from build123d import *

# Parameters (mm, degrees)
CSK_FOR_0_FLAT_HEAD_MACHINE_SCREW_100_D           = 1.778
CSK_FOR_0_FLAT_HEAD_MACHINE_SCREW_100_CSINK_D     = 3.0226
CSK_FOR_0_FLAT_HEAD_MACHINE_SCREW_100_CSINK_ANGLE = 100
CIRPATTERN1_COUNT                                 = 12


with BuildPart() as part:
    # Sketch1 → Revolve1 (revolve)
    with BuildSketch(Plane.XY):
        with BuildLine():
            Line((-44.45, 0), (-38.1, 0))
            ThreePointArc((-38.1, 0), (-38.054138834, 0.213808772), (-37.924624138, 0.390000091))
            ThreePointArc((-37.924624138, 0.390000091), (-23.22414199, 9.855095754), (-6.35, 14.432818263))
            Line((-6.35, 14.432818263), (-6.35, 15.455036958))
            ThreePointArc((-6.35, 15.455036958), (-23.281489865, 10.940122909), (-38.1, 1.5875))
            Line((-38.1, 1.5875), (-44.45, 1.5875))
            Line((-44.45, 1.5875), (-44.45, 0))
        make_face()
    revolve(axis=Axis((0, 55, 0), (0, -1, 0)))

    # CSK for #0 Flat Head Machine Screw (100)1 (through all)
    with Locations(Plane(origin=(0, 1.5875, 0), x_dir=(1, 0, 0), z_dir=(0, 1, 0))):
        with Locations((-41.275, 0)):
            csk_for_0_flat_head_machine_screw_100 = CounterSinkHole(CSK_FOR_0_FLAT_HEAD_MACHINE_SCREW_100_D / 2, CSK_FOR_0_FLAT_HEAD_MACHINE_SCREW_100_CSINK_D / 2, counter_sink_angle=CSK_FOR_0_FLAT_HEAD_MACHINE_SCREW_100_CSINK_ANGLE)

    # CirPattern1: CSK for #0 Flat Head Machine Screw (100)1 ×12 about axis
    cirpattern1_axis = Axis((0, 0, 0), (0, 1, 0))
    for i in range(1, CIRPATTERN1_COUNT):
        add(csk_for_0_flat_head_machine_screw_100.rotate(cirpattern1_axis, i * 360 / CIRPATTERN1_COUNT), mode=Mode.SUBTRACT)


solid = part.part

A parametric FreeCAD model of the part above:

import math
import FreeCAD as App
import Part
import Sketcher
Q = App.Units.Quantity

doc = App.newDocument("Part")
body = doc.addObject("PartDesign::Body", "Body")

# Sketch on XY plane
sketch1 = body.newObject("Sketcher::SketchObject", "Sketch")
sketch1.AttachmentSupport = (doc.getObject("XY_Plane"), [""])
sketch1.MapMode = "FlatFace"
sketch1.addGeometry([
    Part.LineSegment(App.Vector(-44.45, 0, 0), App.Vector(-38.1, 0, 0)),  # 0
    Part.ArcOfCircle(Part.Circle(App.Vector(-37.58, 0, 0), App.Vector(0, 0, 1), 0.52), math.radians(132), math.radians(180)),  # 1
    Part.ArcOfCircle(Part.Circle(App.Vector(0, -42.36, 0), App.Vector(0, 0, 1), 57.15), math.radians(96), math.radians(132)),  # 2
    Part.LineSegment(App.Vector(-6.35, 14.43, 0), App.Vector(-6.35, 15.46, 0)),  # 3
    Part.ArcOfCircle(Part.Circle(App.Vector(0, -42.36, 0), App.Vector(0, 0, 1), 58.17), math.radians(96), math.radians(131)),  # 4
    Part.LineSegment(App.Vector(-38.1, 1.59, 0), App.Vector(-44.45, 1.59, 0)),  # 5
    Part.LineSegment(App.Vector(-44.45, 1.59, 0), App.Vector(-44.45, 0, 0)),  # 6
], False)
sketch1.addConstraint([
    Sketcher.Constraint("Coincident", 0, 2, 1, 2),
    Sketcher.Constraint("Tangent", 1, 1, 2, 2),
    Sketcher.Constraint("Coincident", 2, 1, 3, 1),
    Sketcher.Constraint("Coincident", 3, 2, 4, 1),
    Sketcher.Constraint("Coincident", 4, 2, 5, 1),
    Sketcher.Constraint("Coincident", 5, 2, 6, 1),
    Sketcher.Constraint("Coincident", 6, 2, 0, 1),
    Sketcher.Constraint("Horizontal", 0),
    Sketcher.Constraint("Vertical", 3),
    Sketcher.Constraint("Horizontal", 5),
    Sketcher.Constraint("Vertical", 6),
    Sketcher.Constraint("Coincident", 4, 3, 2, 3),
    Sketcher.Constraint("PointOnObject", 1, 3, -1),
    Sketcher.Constraint("PointOnObject", 2, 3, -2),
    Sketcher.Constraint("PointOnObject", 0, 2, -1),
    Sketcher.Constraint("Vertical", 0, 2, 4, 2),
    Sketcher.Constraint("Radius", 2, Q("2.25 in")),
    Sketcher.Constraint("Radius", 4, Q("2.29 in")),
    Sketcher.Constraint("DistanceX", 0, 1, 0, 2, Q("0.25 in")),
    Sketcher.Constraint("DistanceX", 0, 2, -1, 1, Q("1.5 in")),
    Sketcher.Constraint("DistanceX", 5, 2, 2, 1, Q("1.5 in")),
    Sketcher.Constraint("DistanceY", 6, 2, 6, 1, Q("0.0625 in")),
])
revolution = body.newObject("PartDesign::Revolution", "Revolution")
revolution.Profile = sketch1
revolution.ReferenceAxis = (sketch1, ["V_Axis"])
revolution.Angle = 360

# Sketch on XZ plane
sketch2 = body.newObject("Sketcher::SketchObject", "Sketch001")
sketch2.AttachmentSupport = (doc.getObject("XZ_Plane"), [""])
sketch2.MapMode = "FlatFace"
sketch2.AttachmentOffset = App.Placement(App.Vector(0, 0, -0.0625 * 25.4), App.Rotation())
sketch2.addGeometry(Part.Circle(App.Vector(-41.3, 0, 0), App.Vector(0, 0, 1), 0.9), False)
sketch2.addConstraint([
    Sketcher.Constraint("PointOnObject", 0, 3, -1),
    Sketcher.Constraint("Diameter", 0, Q("0.07 in")),
    Sketcher.Constraint("DistanceX", 0, 3, -1, 1, Q("1.625 in")),
])
doc.recompute()
hole = body.newObject("PartDesign::Hole", "Hole")
hole.Profile = sketch2
hole.ThreadType = "None"
hole.Diameter = Q("0.07 in")
hole.DepthType = "ThroughAll"
hole.HoleCutType = "Countersink"
hole.HoleCutDiameter = Q("0.119 in")
hole.HoleCutCountersinkAngle = 100
hole.Reversed = True
doc.recompute()

polarpattern = body.newObject("PartDesign::PolarPattern", "PolarPattern")
polarpattern.Originals = [hole]
polarpattern.Axis = (doc.getObject("Y_Axis"), [""])
polarpattern.Angle = 360
polarpattern.Occurrences = 12
body.Tip = polarpattern

doc.recompute()
